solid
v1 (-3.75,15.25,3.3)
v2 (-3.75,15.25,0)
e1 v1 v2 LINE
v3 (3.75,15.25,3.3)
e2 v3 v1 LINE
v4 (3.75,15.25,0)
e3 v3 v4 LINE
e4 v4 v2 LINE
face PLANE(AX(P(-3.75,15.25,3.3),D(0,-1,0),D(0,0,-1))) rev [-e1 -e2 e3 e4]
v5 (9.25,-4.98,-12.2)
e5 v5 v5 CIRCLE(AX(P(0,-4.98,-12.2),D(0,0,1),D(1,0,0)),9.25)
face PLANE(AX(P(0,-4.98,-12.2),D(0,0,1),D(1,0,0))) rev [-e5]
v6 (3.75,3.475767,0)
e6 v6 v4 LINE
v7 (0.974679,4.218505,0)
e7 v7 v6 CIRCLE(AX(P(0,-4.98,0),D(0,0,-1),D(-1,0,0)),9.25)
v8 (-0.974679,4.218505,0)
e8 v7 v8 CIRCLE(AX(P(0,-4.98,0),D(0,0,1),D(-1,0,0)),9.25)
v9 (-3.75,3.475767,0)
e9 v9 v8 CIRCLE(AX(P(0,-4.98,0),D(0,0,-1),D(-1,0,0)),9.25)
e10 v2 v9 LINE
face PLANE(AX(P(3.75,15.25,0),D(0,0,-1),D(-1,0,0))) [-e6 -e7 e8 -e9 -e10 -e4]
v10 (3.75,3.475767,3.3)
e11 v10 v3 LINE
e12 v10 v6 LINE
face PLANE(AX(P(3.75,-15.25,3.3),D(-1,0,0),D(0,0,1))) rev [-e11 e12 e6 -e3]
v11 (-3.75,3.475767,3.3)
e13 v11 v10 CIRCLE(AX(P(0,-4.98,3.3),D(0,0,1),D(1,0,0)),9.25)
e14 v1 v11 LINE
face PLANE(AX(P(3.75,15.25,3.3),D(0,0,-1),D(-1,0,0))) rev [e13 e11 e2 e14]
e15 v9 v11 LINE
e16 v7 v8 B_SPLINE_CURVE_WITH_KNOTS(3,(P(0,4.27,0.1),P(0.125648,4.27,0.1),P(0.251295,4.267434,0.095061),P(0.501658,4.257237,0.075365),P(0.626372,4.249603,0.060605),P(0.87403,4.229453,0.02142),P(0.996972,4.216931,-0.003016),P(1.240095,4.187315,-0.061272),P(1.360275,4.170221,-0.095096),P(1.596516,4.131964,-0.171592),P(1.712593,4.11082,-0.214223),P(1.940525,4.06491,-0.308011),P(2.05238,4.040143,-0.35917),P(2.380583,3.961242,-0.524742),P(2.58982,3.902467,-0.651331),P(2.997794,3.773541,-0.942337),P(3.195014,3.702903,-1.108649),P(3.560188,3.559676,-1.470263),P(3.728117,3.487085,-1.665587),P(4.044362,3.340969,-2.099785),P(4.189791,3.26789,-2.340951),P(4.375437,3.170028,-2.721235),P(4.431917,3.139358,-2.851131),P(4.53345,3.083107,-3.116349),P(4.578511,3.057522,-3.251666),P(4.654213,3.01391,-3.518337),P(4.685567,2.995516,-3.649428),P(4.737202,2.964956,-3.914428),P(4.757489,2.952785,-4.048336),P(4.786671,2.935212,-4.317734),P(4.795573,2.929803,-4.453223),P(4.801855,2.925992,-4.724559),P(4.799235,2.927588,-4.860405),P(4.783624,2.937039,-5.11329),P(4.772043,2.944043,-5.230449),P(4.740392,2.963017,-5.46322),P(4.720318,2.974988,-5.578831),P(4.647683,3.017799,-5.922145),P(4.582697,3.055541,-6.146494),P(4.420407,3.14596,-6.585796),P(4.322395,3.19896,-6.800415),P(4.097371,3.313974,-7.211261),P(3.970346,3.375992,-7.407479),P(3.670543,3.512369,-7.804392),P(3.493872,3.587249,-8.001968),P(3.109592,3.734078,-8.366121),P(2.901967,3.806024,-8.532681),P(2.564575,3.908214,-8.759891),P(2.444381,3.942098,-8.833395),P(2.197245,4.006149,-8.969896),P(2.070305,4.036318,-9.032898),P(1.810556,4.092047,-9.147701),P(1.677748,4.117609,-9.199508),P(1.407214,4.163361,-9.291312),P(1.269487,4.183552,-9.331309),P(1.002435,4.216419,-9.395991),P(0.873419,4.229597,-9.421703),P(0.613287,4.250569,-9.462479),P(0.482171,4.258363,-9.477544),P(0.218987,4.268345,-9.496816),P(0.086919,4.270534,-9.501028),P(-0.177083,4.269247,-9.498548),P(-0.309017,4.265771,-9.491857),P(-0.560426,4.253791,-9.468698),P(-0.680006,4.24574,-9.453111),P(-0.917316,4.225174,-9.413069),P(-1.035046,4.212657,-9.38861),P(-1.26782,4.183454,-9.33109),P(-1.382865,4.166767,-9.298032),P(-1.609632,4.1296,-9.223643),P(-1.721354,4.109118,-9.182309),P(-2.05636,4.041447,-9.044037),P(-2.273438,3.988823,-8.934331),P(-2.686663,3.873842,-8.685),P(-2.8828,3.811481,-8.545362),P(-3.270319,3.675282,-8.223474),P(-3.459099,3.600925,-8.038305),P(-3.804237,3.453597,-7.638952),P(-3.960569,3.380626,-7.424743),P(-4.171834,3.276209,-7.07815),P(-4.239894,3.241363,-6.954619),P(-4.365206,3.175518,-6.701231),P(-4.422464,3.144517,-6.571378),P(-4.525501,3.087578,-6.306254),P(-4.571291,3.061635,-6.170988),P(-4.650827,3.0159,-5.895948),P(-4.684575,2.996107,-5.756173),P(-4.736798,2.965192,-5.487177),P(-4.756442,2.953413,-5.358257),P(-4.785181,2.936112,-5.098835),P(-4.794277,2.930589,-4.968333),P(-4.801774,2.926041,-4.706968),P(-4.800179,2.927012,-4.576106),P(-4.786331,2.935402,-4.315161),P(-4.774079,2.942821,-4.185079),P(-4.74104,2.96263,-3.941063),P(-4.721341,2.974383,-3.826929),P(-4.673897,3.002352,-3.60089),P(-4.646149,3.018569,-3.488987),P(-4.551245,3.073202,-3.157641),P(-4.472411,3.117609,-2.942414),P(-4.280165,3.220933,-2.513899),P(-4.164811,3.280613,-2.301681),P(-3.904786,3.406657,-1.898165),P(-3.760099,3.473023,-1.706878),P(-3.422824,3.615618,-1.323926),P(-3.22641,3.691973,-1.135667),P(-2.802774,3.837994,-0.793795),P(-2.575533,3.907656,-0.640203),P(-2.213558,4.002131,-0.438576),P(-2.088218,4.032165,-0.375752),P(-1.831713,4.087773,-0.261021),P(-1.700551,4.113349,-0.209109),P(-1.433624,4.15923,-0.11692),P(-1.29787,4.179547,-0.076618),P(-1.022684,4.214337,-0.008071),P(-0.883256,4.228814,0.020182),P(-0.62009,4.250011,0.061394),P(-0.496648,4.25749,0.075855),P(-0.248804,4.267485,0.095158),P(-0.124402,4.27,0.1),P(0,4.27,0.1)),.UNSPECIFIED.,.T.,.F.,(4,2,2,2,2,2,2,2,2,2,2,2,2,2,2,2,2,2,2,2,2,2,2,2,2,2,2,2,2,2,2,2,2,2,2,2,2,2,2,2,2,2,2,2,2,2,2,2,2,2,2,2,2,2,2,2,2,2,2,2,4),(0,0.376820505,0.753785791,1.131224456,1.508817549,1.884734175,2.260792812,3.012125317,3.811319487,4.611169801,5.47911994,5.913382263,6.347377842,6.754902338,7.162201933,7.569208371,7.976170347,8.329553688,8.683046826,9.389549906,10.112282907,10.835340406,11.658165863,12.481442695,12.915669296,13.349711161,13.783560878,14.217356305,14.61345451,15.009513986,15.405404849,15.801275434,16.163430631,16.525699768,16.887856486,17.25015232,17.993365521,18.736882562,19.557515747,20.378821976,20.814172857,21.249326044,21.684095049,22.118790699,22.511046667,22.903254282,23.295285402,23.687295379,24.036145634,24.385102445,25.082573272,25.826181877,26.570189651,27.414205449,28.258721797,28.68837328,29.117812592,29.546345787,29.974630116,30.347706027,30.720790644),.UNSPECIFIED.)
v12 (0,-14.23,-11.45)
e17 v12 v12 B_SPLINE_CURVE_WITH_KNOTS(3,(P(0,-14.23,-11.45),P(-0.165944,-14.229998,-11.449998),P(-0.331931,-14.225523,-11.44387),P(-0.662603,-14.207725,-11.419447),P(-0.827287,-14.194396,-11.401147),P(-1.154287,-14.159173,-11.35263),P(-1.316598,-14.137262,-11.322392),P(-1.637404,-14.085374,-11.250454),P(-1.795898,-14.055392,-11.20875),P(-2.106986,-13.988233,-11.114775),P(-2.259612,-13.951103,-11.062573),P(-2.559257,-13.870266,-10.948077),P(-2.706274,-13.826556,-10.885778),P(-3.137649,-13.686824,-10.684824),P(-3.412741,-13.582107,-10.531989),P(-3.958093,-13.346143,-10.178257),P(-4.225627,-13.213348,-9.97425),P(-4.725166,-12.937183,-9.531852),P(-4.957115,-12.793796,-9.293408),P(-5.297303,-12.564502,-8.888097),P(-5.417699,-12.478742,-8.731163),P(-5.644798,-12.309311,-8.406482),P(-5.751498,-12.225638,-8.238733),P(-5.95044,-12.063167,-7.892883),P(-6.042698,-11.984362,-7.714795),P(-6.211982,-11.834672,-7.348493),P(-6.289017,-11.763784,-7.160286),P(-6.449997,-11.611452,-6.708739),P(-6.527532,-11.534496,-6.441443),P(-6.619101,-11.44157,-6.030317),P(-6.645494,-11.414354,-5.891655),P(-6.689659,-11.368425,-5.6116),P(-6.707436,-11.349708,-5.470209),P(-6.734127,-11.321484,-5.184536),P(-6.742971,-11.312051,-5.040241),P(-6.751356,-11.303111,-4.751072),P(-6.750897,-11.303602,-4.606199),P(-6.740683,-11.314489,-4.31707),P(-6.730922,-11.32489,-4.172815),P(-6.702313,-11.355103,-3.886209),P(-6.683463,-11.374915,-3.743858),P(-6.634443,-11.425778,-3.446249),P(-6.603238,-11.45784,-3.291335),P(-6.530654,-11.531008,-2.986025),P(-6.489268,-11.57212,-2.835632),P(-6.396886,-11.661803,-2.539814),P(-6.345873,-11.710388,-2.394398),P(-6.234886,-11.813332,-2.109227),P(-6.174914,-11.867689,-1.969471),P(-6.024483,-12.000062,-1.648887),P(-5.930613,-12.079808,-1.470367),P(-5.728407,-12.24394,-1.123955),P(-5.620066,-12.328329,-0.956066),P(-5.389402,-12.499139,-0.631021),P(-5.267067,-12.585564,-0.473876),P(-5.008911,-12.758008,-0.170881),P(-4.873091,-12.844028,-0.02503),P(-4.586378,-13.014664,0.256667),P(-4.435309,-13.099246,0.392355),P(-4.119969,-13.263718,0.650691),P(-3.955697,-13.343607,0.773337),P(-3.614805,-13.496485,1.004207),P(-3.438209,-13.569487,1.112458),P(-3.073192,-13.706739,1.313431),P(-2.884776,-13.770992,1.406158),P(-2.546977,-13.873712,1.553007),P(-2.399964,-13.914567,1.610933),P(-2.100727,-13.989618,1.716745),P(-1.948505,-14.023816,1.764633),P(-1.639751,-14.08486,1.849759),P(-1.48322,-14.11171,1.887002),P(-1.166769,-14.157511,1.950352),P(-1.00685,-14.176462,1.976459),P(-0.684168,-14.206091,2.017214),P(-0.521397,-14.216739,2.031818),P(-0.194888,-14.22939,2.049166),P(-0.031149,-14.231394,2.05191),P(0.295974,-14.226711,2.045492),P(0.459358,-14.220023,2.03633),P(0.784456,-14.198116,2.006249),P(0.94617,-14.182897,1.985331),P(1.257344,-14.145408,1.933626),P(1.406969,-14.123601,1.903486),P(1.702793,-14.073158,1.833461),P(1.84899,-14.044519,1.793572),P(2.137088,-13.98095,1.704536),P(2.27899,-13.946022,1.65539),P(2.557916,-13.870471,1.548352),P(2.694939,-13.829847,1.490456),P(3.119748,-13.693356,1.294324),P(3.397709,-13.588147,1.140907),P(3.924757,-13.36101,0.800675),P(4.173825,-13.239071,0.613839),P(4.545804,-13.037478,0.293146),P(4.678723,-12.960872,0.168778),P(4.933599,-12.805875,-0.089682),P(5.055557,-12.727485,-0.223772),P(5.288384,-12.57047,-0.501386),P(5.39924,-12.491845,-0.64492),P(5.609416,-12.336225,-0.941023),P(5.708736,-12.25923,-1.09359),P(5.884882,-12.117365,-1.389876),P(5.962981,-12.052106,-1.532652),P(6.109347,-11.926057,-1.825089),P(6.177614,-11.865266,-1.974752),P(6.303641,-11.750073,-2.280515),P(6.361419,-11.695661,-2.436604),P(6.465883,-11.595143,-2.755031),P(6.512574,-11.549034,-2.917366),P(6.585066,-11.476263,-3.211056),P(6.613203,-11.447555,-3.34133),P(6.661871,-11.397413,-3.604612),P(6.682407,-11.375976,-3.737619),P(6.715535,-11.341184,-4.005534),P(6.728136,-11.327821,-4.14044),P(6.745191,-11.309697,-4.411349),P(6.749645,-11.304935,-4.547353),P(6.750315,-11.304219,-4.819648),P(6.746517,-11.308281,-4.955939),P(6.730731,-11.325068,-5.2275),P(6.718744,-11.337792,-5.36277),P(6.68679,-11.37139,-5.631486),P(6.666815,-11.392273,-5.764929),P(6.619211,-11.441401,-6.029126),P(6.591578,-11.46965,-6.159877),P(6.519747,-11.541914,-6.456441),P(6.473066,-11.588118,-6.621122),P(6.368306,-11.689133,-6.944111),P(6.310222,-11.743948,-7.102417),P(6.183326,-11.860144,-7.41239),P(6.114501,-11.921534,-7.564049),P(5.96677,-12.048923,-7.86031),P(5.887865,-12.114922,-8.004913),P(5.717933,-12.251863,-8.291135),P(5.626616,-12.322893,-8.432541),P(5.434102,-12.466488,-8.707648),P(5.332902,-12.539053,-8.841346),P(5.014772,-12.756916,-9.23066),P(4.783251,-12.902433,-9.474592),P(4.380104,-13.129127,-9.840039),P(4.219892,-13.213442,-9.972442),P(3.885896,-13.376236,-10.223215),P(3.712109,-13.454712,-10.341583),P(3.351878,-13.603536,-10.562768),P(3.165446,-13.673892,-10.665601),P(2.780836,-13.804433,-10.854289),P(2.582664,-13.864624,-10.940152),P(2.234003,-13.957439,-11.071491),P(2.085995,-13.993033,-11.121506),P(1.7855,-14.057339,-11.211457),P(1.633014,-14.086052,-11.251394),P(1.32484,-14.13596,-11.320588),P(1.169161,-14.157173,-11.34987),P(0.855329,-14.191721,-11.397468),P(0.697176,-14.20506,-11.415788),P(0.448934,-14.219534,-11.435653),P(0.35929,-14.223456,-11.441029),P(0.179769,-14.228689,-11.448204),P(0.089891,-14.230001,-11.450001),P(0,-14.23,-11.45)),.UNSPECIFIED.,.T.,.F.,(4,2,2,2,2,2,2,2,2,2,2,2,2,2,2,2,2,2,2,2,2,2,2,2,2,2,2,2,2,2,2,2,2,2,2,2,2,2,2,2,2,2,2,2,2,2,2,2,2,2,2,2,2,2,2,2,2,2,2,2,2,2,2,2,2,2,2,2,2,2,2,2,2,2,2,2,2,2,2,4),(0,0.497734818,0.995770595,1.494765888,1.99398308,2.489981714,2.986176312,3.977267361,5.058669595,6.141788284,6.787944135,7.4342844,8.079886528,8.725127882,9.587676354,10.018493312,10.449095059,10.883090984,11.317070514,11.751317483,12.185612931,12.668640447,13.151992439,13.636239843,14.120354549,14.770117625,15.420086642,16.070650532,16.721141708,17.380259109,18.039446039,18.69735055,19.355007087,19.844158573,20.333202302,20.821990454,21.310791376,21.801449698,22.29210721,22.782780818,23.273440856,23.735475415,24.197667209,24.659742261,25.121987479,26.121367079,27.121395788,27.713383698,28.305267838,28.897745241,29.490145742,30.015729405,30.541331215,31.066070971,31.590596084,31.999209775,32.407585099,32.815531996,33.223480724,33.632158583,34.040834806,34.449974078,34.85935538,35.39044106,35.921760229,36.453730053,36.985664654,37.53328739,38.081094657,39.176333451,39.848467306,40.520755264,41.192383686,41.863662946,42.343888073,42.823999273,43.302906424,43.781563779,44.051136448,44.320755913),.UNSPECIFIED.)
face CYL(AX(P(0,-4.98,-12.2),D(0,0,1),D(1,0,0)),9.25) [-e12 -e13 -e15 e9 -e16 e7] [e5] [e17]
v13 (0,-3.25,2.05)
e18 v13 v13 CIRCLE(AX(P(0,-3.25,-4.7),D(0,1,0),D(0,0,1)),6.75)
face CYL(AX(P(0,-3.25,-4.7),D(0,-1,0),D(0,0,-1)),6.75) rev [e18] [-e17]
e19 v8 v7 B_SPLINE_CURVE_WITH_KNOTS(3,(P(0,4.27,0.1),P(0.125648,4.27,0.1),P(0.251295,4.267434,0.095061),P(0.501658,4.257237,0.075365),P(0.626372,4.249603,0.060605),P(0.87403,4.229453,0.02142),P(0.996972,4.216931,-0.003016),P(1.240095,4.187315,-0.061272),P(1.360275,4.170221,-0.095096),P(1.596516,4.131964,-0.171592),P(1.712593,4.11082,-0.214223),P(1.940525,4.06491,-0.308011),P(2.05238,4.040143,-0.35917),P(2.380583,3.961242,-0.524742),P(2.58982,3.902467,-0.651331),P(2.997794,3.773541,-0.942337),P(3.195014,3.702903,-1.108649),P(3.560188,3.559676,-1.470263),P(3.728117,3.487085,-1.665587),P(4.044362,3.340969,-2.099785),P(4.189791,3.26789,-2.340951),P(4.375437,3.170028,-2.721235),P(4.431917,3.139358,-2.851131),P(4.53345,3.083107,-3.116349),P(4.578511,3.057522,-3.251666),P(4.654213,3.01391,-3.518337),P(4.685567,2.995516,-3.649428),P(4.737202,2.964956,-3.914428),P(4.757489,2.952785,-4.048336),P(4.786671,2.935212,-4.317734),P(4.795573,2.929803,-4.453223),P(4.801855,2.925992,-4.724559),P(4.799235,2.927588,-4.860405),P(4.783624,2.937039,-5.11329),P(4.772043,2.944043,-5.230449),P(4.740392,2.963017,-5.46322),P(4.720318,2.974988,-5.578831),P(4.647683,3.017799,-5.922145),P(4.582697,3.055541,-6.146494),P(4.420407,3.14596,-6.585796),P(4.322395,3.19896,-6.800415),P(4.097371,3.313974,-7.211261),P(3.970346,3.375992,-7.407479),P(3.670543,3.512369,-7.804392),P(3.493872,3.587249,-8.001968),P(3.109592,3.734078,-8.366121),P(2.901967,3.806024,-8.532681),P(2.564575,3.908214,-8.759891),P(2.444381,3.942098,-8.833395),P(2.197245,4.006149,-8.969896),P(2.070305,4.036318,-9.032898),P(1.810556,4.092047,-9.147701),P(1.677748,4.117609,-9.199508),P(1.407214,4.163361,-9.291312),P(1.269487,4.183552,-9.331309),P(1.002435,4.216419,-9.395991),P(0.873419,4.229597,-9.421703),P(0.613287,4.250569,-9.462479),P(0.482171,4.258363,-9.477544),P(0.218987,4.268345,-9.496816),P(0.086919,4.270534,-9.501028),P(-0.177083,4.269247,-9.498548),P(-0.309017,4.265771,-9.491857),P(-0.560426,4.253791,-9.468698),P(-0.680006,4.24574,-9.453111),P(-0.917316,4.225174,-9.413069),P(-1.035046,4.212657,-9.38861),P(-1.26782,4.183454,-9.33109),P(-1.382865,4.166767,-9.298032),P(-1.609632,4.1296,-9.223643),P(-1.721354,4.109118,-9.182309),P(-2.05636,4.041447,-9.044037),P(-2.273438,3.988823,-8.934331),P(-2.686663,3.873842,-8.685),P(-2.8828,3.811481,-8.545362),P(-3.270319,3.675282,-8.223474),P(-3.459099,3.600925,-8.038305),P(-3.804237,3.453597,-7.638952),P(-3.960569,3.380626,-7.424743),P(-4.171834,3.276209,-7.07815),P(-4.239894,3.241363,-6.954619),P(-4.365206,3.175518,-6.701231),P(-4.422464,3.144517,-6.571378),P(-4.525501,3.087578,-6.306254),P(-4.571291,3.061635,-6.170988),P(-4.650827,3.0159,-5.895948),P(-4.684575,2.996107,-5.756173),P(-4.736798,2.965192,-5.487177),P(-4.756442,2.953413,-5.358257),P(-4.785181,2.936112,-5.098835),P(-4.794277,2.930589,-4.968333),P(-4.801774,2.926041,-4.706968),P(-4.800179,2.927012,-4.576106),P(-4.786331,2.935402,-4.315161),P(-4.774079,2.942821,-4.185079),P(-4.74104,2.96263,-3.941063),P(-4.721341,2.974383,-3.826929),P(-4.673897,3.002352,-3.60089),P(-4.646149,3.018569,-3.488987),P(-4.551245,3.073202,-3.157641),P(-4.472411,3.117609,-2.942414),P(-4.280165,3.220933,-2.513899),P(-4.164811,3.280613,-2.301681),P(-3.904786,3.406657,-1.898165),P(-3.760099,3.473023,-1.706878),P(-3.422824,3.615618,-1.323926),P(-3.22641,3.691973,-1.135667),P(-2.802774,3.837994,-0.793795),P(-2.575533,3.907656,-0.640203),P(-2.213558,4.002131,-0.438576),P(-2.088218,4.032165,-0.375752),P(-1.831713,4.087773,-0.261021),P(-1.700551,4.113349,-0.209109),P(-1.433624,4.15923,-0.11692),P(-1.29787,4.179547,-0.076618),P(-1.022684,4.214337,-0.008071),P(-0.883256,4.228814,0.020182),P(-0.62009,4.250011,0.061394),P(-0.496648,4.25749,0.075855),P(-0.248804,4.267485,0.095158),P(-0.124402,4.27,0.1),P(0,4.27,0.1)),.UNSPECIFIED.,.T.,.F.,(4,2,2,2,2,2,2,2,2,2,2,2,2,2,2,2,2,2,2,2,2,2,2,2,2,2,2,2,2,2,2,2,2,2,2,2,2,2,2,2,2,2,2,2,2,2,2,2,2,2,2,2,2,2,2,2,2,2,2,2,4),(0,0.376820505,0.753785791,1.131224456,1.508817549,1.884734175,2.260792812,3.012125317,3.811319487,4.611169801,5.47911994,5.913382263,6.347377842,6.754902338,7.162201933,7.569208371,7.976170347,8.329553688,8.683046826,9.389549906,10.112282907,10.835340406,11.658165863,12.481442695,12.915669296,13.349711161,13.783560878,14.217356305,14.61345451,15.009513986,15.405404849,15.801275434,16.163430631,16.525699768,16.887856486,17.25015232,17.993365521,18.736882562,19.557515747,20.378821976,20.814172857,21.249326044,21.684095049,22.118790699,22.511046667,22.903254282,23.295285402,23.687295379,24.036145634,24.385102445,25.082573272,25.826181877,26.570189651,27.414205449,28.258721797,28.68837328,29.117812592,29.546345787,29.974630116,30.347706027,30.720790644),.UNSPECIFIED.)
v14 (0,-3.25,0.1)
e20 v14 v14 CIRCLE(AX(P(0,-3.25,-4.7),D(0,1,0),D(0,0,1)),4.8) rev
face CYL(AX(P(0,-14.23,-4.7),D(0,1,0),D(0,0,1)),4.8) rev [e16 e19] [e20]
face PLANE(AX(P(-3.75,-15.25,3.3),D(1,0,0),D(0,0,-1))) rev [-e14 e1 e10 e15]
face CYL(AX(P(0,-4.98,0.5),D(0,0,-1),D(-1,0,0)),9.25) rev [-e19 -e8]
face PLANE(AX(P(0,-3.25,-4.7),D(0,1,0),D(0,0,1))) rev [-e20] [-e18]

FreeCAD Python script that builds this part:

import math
import FreeCAD as App
import Part
import Sketcher

V = App.Vector
Q = App.Units.Quantity

doc = App.newDocument("Part")
body = doc.addObject("PartDesign::Body", "Body")

# Sketch on XY plane
sketch1 = body.newObject("Sketcher::SketchObject", "Sketch")
sketch1.AttachmentSupport = (doc.getObject("XY_Plane"), [""])
sketch1.MapMode = "FlatFace"
sketch1.addGeometry([
    Part.LineSegment(V(-4, 15, 0), V(-4, -15, 0)),
    Part.LineSegment(V(-4, -15, 0), V(4, -15, 0)),
    Part.LineSegment(V(4, -15, 0), V(4, 15, 0)),
    Part.LineSegment(V(4, 15, 0), V(-4, 15, 0)),
], False)
sketch1.addConstraint([
    Sketcher.Constraint("Coincident", 0, 2, 1, 1),
    Sketcher.Constraint("Coincident", 1, 2, 2, 1),
    Sketcher.Constraint("Coincident", 2, 2, 3, 1),
    Sketcher.Constraint("Coincident", 3, 2, 0, 1),
    Sketcher.Constraint("Vertical", 0),
    Sketcher.Constraint("Horizontal", 1),
    Sketcher.Constraint("Vertical", 2),
    Sketcher.Constraint("Horizontal", 3),
    Sketcher.Constraint("Symmetric", 0, 2, 2, 2, -1, 1),
    Sketcher.Constraint("DistanceX", 1, 1, 1, 2, Q("7.5 mm")),
    Sketcher.Constraint("DistanceY", 0, 2, 0, 1, Q("30.5 mm")),
])
pad1 = body.newObject("PartDesign::Pad", "Pad")
pad1.Profile = sketch1
pad1.Length = 3.3

# Sketch on XY plane
sketch2 = body.newObject("Sketcher::SketchObject", "Sketch001")
sketch2.AttachmentSupport = (doc.getObject("XY_Plane"), [""])
sketch2.MapMode = "FlatFace"
sketch2.addGeometry([
    Part.LineSegment(V(4, -7, 0), V(4, -15, 0)),
    Part.LineSegment(V(4, -15, 0), V(-4, -15, 0)),
    Part.LineSegment(V(-4, -15, 0), V(-4, -7, 0)),
    Part.LineSegment(V(-4, -7, 0), V(4, -7, 0)),
], False)
sketch2.addConstraint([
    Sketcher.Constraint("Coincident", 0, 2, 1, 1),
    Sketcher.Constraint("Coincident", 1, 2, 2, 1),
    Sketcher.Constraint("Coincident", 2, 2, 3, 1),
    Sketcher.Constraint("Coincident", 3, 2, 0, 1),
    Sketcher.Constraint("Vertical", 0),
    Sketcher.Constraint("Horizontal", 1),
    Sketcher.Constraint("Vertical", 2),
    Sketcher.Constraint("Horizontal", 3),
    Sketcher.Constraint("DistanceX", 1, 2, 1, 1, Q("7.5 mm")),
    Sketcher.Constraint("DistanceX", -1, 1, 0, 2, Q("3.75 mm")),
    Sketcher.Constraint("DistanceY", 0, 2, -1, 1, Q("15.25 mm")),
    Sketcher.Constraint("DistanceY", 0, 2, 0, 1, Q("8.198436 mm")),
])
pocket1 = body.newObject("PartDesign::Pocket", "Pocket")
pocket1.Profile = sketch2
pocket1.Type = "ThroughAll"
pocket1.Reversed = True

# Sketch on XY plane
sketch3 = body.newObject("Sketcher::SketchObject", "Sketch002")
sketch3.AttachmentSupport = (doc.getObject("XY_Plane"), [""])
sketch3.MapMode = "FlatFace"
sketch3.AttachmentOffset = App.Placement(V(0, 0, 3.3), App.Rotation())
sketch3.addGeometry(Part.Circle(V(0, -5, 0), V(0, 0, 1), 9), False)
sketch3.addConstraint([
    Sketcher.Constraint("PointOnObject", 0, 3, -2),
    Sketcher.Constraint("Diameter", 0, Q("18.5 mm")),
    Sketcher.Constraint("DistanceY", 0, 3, -1, 1, Q("4.98 mm")),
])
pad2 = body.newObject("PartDesign::Pad", "Pad001")
pad2.Profile = sketch3
pad2.Length = 15.5
pad2.Reversed = True

# Sketch on XZ plane
sketch4 = body.newObject("Sketcher::SketchObject", "Sketch003")
sketch4.AttachmentSupport = (doc.getObject("XZ_Plane"), [""])
sketch4.MapMode = "FlatFace"
sketch4.AttachmentOffset = App.Placement(V(0, 0, -15.25), App.Rotation())
sketch4.addGeometry(Part.Circle(V(0, -4.7, 0), V(0, 0, 1), 4.8), False)
sketch4.addConstraint([
    Sketcher.Constraint("PointOnObject", 0, 3, -2),
    Sketcher.Constraint("Diameter", 0, Q("9.6 mm")),
    Sketcher.Constraint("DistanceY", 0, 3, -1, 1, Q("4.7 mm")),
])
pocket2 = body.newObject("PartDesign::Pocket", "Pocket001")
pocket2.Profile = sketch4
pocket2.Type = "ThroughAll"
pocket2.Reversed = True

# Sketch on XZ plane
sketch5 = body.newObject("Sketcher::SketchObject", "Sketch004")
sketch5.AttachmentSupport = (doc.getObject("XZ_Plane"), [""])
sketch5.MapMode = "FlatFace"
sketch5.AttachmentOffset = App.Placement(V(0, 0, 6), App.Rotation())
sketch5.addGeometry(Part.Circle(V(0, -5, 0), V(0, 0, 1), 7), False)
sketch5.addConstraint([
    Sketcher.Constraint("PointOnObject", 0, 3, -2),
    Sketcher.Constraint("Diameter", 0, Q("13.5 mm")),
    Sketcher.Constraint("DistanceY", 0, 3, -1, 1, Q("4.7 mm")),
])
pocket3 = body.newObject("PartDesign::Pocket", "Pocket002")
pocket3.Profile = sketch5
pocket3.Type = "TwoLengths"
pocket3.Length = 2.75
pocket3.Length2 = 10

# Sketch on XY plane
sketch6 = body.newObject("Sketcher::SketchObject", "Sketch005")
sketch6.AttachmentSupport = (doc.getObject("XY_Plane"), [""])
sketch6.MapMode = "FlatFace"
sketch6.AttachmentOffset = App.Placement(V(0, 0, 0.5), App.Rotation())
sketch6.addGeometry([
    Part.LineSegment(V(1, 15.2, 0), V(1, 4.2, 0)),
    Part.ArcOfCircle(Part.Circle(V(0, -5, 0), V(0, 0, 1), 9.2), math.radians(83.95), math.radians(96.05)),
    Part.LineSegment(V(-1, 4.2, 0), V(-1, 15.2, 0)),
    Part.LineSegment(V(-1, 15.2, 0), V(1, 15.2, 0)),
], False)
sketch6.addConstraint([
    Sketcher.Constraint("Coincident", 0, 2, 1, 1),
    Sketcher.Constraint("Coincident", 1, 2, 2, 1),
    Sketcher.Constraint("Coincident", 2, 2, 3, 1),
    Sketcher.Constraint("Coincident", 3, 2, 0, 1),
    Sketcher.Constraint("Vertical", 0),
    Sketcher.Constraint("Vertical", 2),
    Sketcher.Constraint("Horizontal", 3),
    Sketcher.Constraint("Symmetric", 0, 2, 1, 2, -2),
    Sketcher.Constraint("Radius", 1, Q("9.25 mm")),
    Sketcher.Constraint("DistanceY", 1, 3, -1, 1, Q("4.98 mm")),
    Sketcher.Constraint("DistanceY", -1, 1, 2, 2, Q("15.25 mm")),
    Sketcher.Constraint("DistanceX", 3, 1, 3, 2, Q("1.949359 mm")),
])
pad3 = body.newObject("PartDesign::Pad", "Pad002")
pad3.Profile = sketch6
pad3.Length = 0.5
pad3.Reversed = True

doc.recompute()
